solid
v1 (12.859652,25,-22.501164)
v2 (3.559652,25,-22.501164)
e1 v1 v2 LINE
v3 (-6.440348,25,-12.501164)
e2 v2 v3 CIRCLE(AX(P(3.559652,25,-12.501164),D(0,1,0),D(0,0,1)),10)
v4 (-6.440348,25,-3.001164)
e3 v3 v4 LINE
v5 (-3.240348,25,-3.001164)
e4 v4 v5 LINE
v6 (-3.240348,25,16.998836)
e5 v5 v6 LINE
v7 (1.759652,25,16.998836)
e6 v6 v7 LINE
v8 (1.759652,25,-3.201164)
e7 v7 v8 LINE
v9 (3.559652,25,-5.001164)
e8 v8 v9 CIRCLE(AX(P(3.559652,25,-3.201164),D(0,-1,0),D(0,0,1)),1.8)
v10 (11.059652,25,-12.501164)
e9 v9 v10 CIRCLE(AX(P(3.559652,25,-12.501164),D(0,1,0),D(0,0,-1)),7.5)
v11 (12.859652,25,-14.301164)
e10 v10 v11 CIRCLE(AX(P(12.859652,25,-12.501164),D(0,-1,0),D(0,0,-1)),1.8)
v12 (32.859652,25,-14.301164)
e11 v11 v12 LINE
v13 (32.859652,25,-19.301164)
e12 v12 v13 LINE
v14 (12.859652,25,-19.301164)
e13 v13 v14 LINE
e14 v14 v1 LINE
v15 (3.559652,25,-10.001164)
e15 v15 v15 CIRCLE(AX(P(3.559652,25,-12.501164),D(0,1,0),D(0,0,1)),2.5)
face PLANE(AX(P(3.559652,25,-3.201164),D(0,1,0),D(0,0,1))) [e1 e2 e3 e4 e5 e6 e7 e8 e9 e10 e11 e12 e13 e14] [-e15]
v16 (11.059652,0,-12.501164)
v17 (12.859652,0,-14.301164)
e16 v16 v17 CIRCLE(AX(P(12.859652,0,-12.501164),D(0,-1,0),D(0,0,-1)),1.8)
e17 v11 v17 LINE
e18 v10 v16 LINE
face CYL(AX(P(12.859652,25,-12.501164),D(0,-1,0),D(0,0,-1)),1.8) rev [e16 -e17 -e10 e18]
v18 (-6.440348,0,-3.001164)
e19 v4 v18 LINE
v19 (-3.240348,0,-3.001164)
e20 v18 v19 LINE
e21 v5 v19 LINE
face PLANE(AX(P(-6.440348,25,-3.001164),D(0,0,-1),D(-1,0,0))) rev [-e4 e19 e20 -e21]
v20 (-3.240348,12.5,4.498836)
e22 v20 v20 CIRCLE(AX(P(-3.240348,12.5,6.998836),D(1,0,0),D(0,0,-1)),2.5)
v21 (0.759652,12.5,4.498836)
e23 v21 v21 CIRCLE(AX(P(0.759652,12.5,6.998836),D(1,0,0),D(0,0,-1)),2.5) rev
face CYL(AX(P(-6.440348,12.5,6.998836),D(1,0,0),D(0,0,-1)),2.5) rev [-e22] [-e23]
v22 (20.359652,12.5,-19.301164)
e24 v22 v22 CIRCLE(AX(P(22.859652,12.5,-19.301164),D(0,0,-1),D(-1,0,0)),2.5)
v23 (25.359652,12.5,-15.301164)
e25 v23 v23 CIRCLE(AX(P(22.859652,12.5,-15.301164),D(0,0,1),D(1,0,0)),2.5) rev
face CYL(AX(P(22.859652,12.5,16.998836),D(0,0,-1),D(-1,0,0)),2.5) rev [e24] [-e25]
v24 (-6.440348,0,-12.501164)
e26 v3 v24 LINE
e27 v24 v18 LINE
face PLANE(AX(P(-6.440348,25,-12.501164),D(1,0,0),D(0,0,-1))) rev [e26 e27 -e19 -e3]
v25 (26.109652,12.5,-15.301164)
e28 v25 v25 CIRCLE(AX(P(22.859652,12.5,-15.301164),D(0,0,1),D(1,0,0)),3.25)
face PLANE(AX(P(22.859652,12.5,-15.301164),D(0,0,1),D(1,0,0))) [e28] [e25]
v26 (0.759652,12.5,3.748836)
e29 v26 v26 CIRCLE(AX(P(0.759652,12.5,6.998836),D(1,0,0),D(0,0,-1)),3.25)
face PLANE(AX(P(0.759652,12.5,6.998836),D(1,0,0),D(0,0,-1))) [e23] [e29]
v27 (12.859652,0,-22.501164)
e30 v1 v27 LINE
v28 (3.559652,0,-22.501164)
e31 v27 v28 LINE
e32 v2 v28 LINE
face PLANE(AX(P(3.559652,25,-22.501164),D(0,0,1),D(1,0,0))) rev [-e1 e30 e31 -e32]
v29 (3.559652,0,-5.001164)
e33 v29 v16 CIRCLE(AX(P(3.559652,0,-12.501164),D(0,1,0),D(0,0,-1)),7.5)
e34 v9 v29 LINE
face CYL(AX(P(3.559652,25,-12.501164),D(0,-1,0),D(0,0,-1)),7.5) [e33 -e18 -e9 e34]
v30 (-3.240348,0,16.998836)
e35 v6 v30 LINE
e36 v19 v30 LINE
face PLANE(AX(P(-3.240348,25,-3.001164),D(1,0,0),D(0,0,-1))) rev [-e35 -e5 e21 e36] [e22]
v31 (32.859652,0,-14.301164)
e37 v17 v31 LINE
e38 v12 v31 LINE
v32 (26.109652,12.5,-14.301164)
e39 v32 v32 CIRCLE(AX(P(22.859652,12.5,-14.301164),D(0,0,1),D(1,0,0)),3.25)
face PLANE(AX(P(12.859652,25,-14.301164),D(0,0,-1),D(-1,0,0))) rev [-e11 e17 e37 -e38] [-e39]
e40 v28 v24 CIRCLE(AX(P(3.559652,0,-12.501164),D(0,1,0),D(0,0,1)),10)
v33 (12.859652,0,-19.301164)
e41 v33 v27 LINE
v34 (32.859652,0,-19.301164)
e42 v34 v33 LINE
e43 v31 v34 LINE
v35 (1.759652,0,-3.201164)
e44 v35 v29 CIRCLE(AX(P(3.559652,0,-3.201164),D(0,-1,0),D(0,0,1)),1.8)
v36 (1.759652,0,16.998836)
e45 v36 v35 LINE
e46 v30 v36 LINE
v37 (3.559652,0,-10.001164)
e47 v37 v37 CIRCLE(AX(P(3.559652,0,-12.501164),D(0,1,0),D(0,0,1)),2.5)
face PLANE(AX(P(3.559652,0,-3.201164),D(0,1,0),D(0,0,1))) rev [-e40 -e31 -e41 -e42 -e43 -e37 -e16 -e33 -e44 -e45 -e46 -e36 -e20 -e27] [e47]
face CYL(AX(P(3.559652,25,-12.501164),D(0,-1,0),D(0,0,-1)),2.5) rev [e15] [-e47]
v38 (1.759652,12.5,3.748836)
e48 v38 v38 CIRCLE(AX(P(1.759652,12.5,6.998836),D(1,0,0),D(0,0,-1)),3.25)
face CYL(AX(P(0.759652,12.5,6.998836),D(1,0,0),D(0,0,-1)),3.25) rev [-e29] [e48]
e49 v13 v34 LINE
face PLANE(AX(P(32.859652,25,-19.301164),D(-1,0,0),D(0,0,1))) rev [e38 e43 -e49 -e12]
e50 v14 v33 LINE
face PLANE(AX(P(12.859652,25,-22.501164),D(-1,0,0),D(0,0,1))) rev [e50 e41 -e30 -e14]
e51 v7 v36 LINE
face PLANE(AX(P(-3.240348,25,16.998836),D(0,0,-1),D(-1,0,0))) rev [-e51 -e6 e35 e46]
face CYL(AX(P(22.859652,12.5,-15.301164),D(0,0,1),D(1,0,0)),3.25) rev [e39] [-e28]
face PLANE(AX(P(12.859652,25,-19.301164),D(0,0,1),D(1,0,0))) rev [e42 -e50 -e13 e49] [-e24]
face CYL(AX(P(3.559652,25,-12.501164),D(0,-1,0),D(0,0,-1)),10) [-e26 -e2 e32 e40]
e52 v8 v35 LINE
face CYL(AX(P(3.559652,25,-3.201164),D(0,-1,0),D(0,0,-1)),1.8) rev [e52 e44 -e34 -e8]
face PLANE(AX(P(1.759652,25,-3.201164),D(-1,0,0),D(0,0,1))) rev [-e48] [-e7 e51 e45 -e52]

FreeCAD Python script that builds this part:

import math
import FreeCAD as App
import Part
import Sketcher
from FreeCAD import Vector

doc = App.newDocument("Part")
body = doc.addObject("PartDesign::Body", "Body")

# Sketch on XZ plane
sketch1 = body.newObject("Sketcher::SketchObject", "Sketch")
sketch1.AttachmentSupport = (doc.getObject("XZ_Plane"), [""])
sketch1.MapMode = "FlatFace"
sketch1.addGeometry([
    Part.LineSegment(Vector(12.9, -14.3, 0), Vector(32.9, -14.3, 0)),  # 0
    Part.LineSegment(Vector(32.9, -14.3, 0), Vector(32.9, -19.3, 0)),  # 1
    Part.LineSegment(Vector(32.9, -19.3, 0), Vector(12.9, -19.3, 0)),  # 2
    Part.LineSegment(Vector(12.9, -19.3, 0), Vector(12.9, -22.5, 0)),  # 3
    Part.LineSegment(Vector(12.9, -22.5, 0), Vector(3.6, -22.5, 0)),  # 4
    Part.ArcOfCircle(Part.Circle(Vector(3.6, -12.5, 0), Vector(0, 0, 1), 10), math.radians(180), math.radians(270)),  # 5
    Part.LineSegment(Vector(-6.4, -12.5, 0), Vector(-6.4, -3, 0)),  # 6
    Part.LineSegment(Vector(-6.4, -3, 0), Vector(-3.2, -3, 0)),  # 7
    Part.LineSegment(Vector(-3.2, -3, 0), Vector(-3.2, 17, 0)),  # 8
    Part.LineSegment(Vector(-3.2, 17, 0), Vector(1.8, 17, 0)),  # 9
    Part.LineSegment(Vector(1.8, 17, 0), Vector(1.8, -3.2, 0)),  # 10
    Part.ArcOfCircle(Part.Circle(Vector(3.6, -3.2, 0), Vector(0, 0, 1), 1.8), math.radians(180), math.radians(270)),  # 11
    Part.ArcOfCircle(Part.Circle(Vector(3.6, -12.5, 0), Vector(0, 0, 1), 7.5), math.radians(0), math.radians(90)),  # 12
    Part.ArcOfCircle(Part.Circle(Vector(12.9, -12.5, 0), Vector(0, 0, 1), 1.8), math.radians(180), math.radians(270)),  # 13
    Part.Circle(Vector(3.6, -12.5, 0), Vector(0, 0, 1), 2.5),  # 14
], False)
sketch1.addConstraint([
    Sketcher.Constraint("Coincident", 0, 2, 1, 1),
    Sketcher.Constraint("Coincident", 1, 2, 2, 1),
    Sketcher.Constraint("Coincident", 2, 2, 3, 1),
    Sketcher.Constraint("Coincident", 3, 2, 4, 1),
    Sketcher.Constraint("Tangent", 4, 2, 5, 2),
    Sketcher.Constraint("Tangent", 5, 1, 6, 1),
    Sketcher.Constraint("Coincident", 6, 2, 7, 1),
    Sketcher.Constraint("Coincident", 7, 2, 8, 1),
    Sketcher.Constraint("Coincident", 8, 2, 9, 1),
    Sketcher.Constraint("Coincident", 9, 2, 10, 1),
    Sketcher.Constraint("Tangent", 10, 2, 11, 1),
    Sketcher.Constraint("Tangent", 11, 2, 12, 2),
    Sketcher.Constraint("Tangent", 12, 1, 13, 1),
    Sketcher.Constraint("Tangent", 13, 2, 0, 1),
    Sketcher.Constraint("Horizontal", 0),
    Sketcher.Constraint("Vertical", 1),
    Sketcher.Constraint("Horizontal", 2),
    Sketcher.Constraint("Vertical", 3),
    Sketcher.Constraint("Horizontal", 4),
    Sketcher.Constraint("Vertical", 6),
    Sketcher.Constraint("Horizontal", 7),
    Sketcher.Constraint("Vertical", 8),
    Sketcher.Constraint("Horizontal", 9),
    Sketcher.Constraint("Vertical", 10),
    Sketcher.Constraint("Coincident", 12, 3, 5, 3),
    Sketcher.Constraint("Coincident", 14, 3, 5, 3),
    Sketcher.Constraint("Equal", 11, 13),
    Sketcher.Constraint("Horizontal", 12, 3, 13, 3),
    Sketcher.Constraint("Vertical", 5, 3, 11, 3),
    Sketcher.Constraint("Vertical", 13, 3, 2, 2),
    Sketcher.Constraint("Equal", 9, 1),
    Sketcher.Constraint("Equal", 2, 8),
    Sketcher.Constraint("Diameter", 14, 5.0),
    Sketcher.Constraint("Radius", 5, 10.0),
    Sketcher.Constraint("Radius", 11, 1.8),
    Sketcher.Constraint("Radius", 12, 7.5),
    Sketcher.Constraint("DistanceX", 0, 1, 0, 2, 20.0),
    Sketcher.Constraint("DistanceX", 9, 1, 9, 2, 5.0),
    Sketcher.Constraint("DistanceY", 6, 1, 6, 2, 9.5),
    Sketcher.Constraint("DistanceX", -1, 1, 5, 3, 3.559652),
    Sketcher.Constraint("DistanceY", 5, 3, -1, 1, 12.501164),
])
pad1 = body.newObject("PartDesign::Pad", "Pad")
pad1.Profile = sketch1
pad1.Length = 25
pad1.Reversed = True

# Sketch on XY plane
sketch2 = body.newObject("Sketcher::SketchObject", "Sketch001")
sketch2.AttachmentSupport = (doc.getObject("XY_Plane"), [""])
sketch2.MapMode = "FlatFace"
sketch2.AttachmentOffset = App.Placement(Vector(0, 0, -19.301164), App.Rotation())
sketch2.addGeometry(Part.Circle(Vector(22.9, 12.5, 0), Vector(0, 0, 1), 2.5), False)
sketch2.addConstraint([
    Sketcher.Constraint("Diameter", 0, 5.0),
    Sketcher.Constraint("DistanceY", -1, 1, 0, 3, 12.5),
    Sketcher.Constraint("DistanceX", -1, 1, 0, 3, 22.859652),
])
pocket1 = body.newObject("PartDesign::Pocket", "Pocket")
pocket1.Profile = sketch2
pocket1.Type = "ThroughAll"
pocket1.Reversed = True

# Sketch on YZ plane
sketch3 = body.newObject("Sketcher::SketchObject", "Sketch002")
sketch3.AttachmentSupport = (doc.getObject("YZ_Plane"), [""])
sketch3.MapMode = "FlatFace"
sketch3.AttachmentOffset = App.Placement(Vector(0, 0, 1.759652), App.Rotation())
sketch3.addGeometry(Part.Circle(Vector(12.5, 7, 0), Vector(0, 0, 1), 2.5), False)
sketch3.addConstraint([
    Sketcher.Constraint("Diameter", 0, 5.0),
    Sketcher.Constraint("DistanceX", -1, 1, 0, 3, 12.5),
    Sketcher.Constraint("DistanceY", -1, 1, 0, 3, 6.998836),
])
pocket2 = body.newObject("PartDesign::Pocket", "Pocket001")
pocket2.Profile = sketch3
pocket2.Type = "ThroughAll"
pocket2.Midplane = True

# Sketch on YZ plane
sketch4 = body.newObject("Sketcher::SketchObject", "Sketch003")
sketch4.AttachmentSupport = (doc.getObject("YZ_Plane"), [""])
sketch4.MapMode = "FlatFace"
sketch4.AttachmentOffset = App.Placement(Vector(0, 0, 1.759652), App.Rotation())
sketch4.addGeometry(Part.Circle(Vector(12.5, 7, 0), Vector(0, 0, 1), 3.2), False)
sketch4.addConstraint([
    Sketcher.Constraint("Diameter", 0, 6.5),
    Sketcher.Constraint("DistanceX", -1, 1, 0, 3, 12.5),
    Sketcher.Constraint("DistanceY", -1, 1, 0, 3, 6.998836),
])
pocket3 = body.newObject("PartDesign::Pocket", "Pocket002")
pocket3.Profile = sketch4
pocket3.Length = 1

# Sketch on XY plane
sketch5 = body.newObject("Sketcher::SketchObject", "Sketch004")
sketch5.AttachmentSupport = (doc.getObject("XY_Plane"), [""])
sketch5.MapMode = "FlatFace"
sketch5.AttachmentOffset = App.Placement(Vector(0, 0, -14.301164), App.Rotation())
sketch5.addGeometry(Part.Circle(Vector(22.9, 12.5, 0), Vector(0, 0, 1), 3.2), False)
sketch5.addConstraint([
    Sketcher.Constraint("Diameter", 0, 6.5),
    Sketcher.Constraint("DistanceY", -1, 1, 0, 3, 12.5),
    Sketcher.Constraint("DistanceX", -1, 1, 0, 3, 22.859652),
])
pocket4 = body.newObject("PartDesign::Pocket", "Pocket003")
pocket4.Profile = sketch5
pocket4.Length = 1

doc.recompute()
